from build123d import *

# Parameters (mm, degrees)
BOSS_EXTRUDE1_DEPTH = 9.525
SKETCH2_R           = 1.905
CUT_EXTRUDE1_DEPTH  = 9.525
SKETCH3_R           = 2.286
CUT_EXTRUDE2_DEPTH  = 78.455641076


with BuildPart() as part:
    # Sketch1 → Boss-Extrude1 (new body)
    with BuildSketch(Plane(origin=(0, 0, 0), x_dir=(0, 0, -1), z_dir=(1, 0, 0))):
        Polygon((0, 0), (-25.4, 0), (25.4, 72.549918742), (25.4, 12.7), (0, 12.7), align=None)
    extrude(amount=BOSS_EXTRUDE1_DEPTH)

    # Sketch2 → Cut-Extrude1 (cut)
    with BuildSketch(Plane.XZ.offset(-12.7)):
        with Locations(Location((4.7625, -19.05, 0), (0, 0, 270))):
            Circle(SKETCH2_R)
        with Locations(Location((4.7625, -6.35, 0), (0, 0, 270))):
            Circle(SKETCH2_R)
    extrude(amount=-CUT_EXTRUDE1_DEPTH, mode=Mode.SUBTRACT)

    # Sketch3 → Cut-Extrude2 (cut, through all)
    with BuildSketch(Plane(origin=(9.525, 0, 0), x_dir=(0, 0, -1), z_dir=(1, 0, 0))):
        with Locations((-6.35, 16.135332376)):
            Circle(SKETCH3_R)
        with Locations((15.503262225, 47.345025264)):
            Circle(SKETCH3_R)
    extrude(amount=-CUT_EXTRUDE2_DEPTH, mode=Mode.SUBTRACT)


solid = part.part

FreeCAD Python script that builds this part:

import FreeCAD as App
import Part
import Sketcher
from FreeCAD import Vector
Q = App.Units.Quantity

doc = App.newDocument("Part")
body = doc.addObject("PartDesign::Body", "Body")

# Sketch on YZ plane
sketch1 = body.newObject("Sketcher::SketchObject", "Sketch")
sketch1.AttachmentSupport = (doc.getObject("YZ_Plane"), [""])
sketch1.MapMode = "FlatFace"
sketch1.addGeometry([
    Part.LineSegment(Vector(0, 25, 0), Vector(0, 0, 0)),  # 0
    Part.LineSegment(Vector(0, 0, 0), Vector(13, 0, 0)),  # 1
    Part.LineSegment(Vector(13, 0, 0), Vector(13, -25, 0)),  # 2
    Part.LineSegment(Vector(13, -25, 0), Vector(73, -25, 0)),  # 3
    Part.LineSegment(Vector(73, -25, 0), Vector(0, 25, 0)),  # 4
], False)
sketch1.addConstraint([
    Sketcher.Constraint("Coincident", 0, 2, 1, 1),
    Sketcher.Constraint("Coincident", 1, 2, 2, 1),
    Sketcher.Constraint("Coincident", 2, 2, 3, 1),
    Sketcher.Constraint("Coincident", 3, 2, 4, 1),
    Sketcher.Constraint("Coincident", 4, 2, 0, 1),
    Sketcher.Constraint("Vertical", 0),
    Sketcher.Constraint("Horizontal", 1),
    Sketcher.Constraint("Vertical", 2),
    Sketcher.Constraint("Horizontal", 3),
    Sketcher.Constraint("Coincident", 0, 2, -1, 1),
    Sketcher.Constraint("Equal", 0, 2),
    Sketcher.Constraint("DistanceY", 0, 2, 0, 1, Q("1 in")),
    Sketcher.Constraint("DistanceX", 1, 1, 1, 2, Q("0.5 in")),
    Sketcher.Constraint("Angle", 4, Q("145 deg")),
])
pad1 = body.newObject("PartDesign::Pad", "Pad")
pad1.Profile = sketch1
pad1.Length = Q("0.375 in")

# Sketch on XZ plane
sketch2 = body.newObject("Sketcher::SketchObject", "Sketch001")
sketch2.AttachmentSupport = (doc.getObject("XZ_Plane"), [""])
sketch2.MapMode = "FlatFace"
sketch2.AttachmentOffset = App.Placement(Vector(0, 0, -0.5 * 25.4), App.Rotation())
sketch2.addGeometry([
    Part.Circle(Vector(4.8, -19.1, 0), Vector(0, 0, 1), 1.9),
    Part.Circle(Vector(4.8, -6.3, 0), Vector(0, 0, 1), 1.9),
], False)
sketch2.addConstraint([
    Sketcher.Constraint("Equal", 0, 1),
    Sketcher.Constraint("Vertical", 0, 3, 1, 3),
    Sketcher.Constraint("Diameter", 0, Q("0.15 in")),
    Sketcher.Constraint("DistanceY", 0, 3, 1, 3, Q("0.5 in")),
    Sketcher.Constraint("DistanceY", 0, 3, -1, 1, Q("0.75 in")),
    Sketcher.Constraint("DistanceX", -1, 1, 0, 3, Q("0.1875 in")),
])
pocket1 = body.newObject("PartDesign::Pocket", "Pocket")
pocket1.Profile = sketch2
pocket1.Length = Q("0.375 in")

# Sketch on YZ plane
sketch3 = body.newObject("Sketcher::SketchObject", "Sketch002")
sketch3.AttachmentSupport = (doc.getObject("YZ_Plane"), [""])
sketch3.MapMode = "FlatFace"
sketch3.AttachmentOffset = App.Placement(Vector(0, 0, 0.375 * 25.4), App.Rotation())
sketch3.addGeometry([
    Part.Circle(Vector(16.1, 6.3, 0), Vector(0, 0, 1), 2.3),
    Part.Circle(Vector(47.3, -15.5, 0), Vector(0, 0, 1), 2.3),
], False)
sketch3.addConstraint([
    Sketcher.Constraint("Equal", 0, 1),
    Sketcher.Constraint("Diameter", 0, Q("0.18 in")),
    Sketcher.Constraint("DistanceY", -1, 1, 0, 3, Q("0.25 in")),
    Sketcher.Constraint("DistanceX", -1, 1, 0, 3, 16.135332),
    Sketcher.Constraint("DistanceX", -1, 1, 1, 3, 47.345025),
    Sketcher.Constraint("DistanceY", 1, 3, -1, 1, 15.503262),
])
pocket2 = body.newObject("PartDesign::Pocket", "Pocket001")
pocket2.Profile = sketch3
pocket2.Type = "ThroughAll"

doc.recompute()
